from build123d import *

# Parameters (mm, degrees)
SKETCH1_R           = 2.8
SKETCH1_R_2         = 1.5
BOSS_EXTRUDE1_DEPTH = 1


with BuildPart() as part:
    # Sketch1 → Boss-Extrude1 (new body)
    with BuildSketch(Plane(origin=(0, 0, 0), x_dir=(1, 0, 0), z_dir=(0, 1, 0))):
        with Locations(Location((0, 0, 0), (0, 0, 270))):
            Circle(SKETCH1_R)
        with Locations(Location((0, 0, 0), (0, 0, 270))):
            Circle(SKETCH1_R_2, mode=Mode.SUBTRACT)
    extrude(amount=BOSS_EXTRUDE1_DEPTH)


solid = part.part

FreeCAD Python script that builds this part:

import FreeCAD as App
import Part
import Sketcher
Q = App.Units.Quantity

doc = App.newDocument("Part")
params = doc.addObject("Spreadsheet::Sheet", "Params")
for row, (alias, value) in enumerate([
    ("sketch1_diameter", "3 mm"),
    ("sketch1_diameter2", "5.6 mm"),
    ("pad1_length", "1 mm"),
], start=1):
    params.set(f"A{row}", alias)
    params.set(f"B{row}", "=" + value)
    params.setAlias(f"B{row}", alias)

body = doc.addObject("PartDesign::Body", "Body")

sketch1 = body.newObject("Sketcher::SketchObject", "Sketch")
sketch1.AttachmentSupport = (doc.getObject("XZ_Plane"), [""])
sketch1.MapMode = "FlatFace"
sketch1.addGeometry([
    Part.Circle(App.Vector(0, 0, 0), App.Vector(0, 0, 1), 2.8),
    Part.Circle(App.Vector(0, 0, 0), App.Vector(0, 0, 1), 1.5),
], False)
sketch1.addConstraint([
    Sketcher.Constraint("Coincident", 0, 3, -1, 1),
    Sketcher.Constraint("Coincident", 1, 3, -1, 1),
    Sketcher.Constraint("Diameter", 1, Q("3 mm")),
    Sketcher.Constraint("Diameter", 0, Q("5.6 mm")),
])
sketch1.setExpression("Constraints[2]", "Params.sketch1_diameter")
sketch1.setExpression("Constraints[3]", "Params.sketch1_diameter2")
pad1 = body.newObject("PartDesign::Pad", "Pad")
pad1.Profile = sketch1
pad1.setExpression("Length", "Params.pad1_length")
pad1.Reversed = True

doc.recompute()
